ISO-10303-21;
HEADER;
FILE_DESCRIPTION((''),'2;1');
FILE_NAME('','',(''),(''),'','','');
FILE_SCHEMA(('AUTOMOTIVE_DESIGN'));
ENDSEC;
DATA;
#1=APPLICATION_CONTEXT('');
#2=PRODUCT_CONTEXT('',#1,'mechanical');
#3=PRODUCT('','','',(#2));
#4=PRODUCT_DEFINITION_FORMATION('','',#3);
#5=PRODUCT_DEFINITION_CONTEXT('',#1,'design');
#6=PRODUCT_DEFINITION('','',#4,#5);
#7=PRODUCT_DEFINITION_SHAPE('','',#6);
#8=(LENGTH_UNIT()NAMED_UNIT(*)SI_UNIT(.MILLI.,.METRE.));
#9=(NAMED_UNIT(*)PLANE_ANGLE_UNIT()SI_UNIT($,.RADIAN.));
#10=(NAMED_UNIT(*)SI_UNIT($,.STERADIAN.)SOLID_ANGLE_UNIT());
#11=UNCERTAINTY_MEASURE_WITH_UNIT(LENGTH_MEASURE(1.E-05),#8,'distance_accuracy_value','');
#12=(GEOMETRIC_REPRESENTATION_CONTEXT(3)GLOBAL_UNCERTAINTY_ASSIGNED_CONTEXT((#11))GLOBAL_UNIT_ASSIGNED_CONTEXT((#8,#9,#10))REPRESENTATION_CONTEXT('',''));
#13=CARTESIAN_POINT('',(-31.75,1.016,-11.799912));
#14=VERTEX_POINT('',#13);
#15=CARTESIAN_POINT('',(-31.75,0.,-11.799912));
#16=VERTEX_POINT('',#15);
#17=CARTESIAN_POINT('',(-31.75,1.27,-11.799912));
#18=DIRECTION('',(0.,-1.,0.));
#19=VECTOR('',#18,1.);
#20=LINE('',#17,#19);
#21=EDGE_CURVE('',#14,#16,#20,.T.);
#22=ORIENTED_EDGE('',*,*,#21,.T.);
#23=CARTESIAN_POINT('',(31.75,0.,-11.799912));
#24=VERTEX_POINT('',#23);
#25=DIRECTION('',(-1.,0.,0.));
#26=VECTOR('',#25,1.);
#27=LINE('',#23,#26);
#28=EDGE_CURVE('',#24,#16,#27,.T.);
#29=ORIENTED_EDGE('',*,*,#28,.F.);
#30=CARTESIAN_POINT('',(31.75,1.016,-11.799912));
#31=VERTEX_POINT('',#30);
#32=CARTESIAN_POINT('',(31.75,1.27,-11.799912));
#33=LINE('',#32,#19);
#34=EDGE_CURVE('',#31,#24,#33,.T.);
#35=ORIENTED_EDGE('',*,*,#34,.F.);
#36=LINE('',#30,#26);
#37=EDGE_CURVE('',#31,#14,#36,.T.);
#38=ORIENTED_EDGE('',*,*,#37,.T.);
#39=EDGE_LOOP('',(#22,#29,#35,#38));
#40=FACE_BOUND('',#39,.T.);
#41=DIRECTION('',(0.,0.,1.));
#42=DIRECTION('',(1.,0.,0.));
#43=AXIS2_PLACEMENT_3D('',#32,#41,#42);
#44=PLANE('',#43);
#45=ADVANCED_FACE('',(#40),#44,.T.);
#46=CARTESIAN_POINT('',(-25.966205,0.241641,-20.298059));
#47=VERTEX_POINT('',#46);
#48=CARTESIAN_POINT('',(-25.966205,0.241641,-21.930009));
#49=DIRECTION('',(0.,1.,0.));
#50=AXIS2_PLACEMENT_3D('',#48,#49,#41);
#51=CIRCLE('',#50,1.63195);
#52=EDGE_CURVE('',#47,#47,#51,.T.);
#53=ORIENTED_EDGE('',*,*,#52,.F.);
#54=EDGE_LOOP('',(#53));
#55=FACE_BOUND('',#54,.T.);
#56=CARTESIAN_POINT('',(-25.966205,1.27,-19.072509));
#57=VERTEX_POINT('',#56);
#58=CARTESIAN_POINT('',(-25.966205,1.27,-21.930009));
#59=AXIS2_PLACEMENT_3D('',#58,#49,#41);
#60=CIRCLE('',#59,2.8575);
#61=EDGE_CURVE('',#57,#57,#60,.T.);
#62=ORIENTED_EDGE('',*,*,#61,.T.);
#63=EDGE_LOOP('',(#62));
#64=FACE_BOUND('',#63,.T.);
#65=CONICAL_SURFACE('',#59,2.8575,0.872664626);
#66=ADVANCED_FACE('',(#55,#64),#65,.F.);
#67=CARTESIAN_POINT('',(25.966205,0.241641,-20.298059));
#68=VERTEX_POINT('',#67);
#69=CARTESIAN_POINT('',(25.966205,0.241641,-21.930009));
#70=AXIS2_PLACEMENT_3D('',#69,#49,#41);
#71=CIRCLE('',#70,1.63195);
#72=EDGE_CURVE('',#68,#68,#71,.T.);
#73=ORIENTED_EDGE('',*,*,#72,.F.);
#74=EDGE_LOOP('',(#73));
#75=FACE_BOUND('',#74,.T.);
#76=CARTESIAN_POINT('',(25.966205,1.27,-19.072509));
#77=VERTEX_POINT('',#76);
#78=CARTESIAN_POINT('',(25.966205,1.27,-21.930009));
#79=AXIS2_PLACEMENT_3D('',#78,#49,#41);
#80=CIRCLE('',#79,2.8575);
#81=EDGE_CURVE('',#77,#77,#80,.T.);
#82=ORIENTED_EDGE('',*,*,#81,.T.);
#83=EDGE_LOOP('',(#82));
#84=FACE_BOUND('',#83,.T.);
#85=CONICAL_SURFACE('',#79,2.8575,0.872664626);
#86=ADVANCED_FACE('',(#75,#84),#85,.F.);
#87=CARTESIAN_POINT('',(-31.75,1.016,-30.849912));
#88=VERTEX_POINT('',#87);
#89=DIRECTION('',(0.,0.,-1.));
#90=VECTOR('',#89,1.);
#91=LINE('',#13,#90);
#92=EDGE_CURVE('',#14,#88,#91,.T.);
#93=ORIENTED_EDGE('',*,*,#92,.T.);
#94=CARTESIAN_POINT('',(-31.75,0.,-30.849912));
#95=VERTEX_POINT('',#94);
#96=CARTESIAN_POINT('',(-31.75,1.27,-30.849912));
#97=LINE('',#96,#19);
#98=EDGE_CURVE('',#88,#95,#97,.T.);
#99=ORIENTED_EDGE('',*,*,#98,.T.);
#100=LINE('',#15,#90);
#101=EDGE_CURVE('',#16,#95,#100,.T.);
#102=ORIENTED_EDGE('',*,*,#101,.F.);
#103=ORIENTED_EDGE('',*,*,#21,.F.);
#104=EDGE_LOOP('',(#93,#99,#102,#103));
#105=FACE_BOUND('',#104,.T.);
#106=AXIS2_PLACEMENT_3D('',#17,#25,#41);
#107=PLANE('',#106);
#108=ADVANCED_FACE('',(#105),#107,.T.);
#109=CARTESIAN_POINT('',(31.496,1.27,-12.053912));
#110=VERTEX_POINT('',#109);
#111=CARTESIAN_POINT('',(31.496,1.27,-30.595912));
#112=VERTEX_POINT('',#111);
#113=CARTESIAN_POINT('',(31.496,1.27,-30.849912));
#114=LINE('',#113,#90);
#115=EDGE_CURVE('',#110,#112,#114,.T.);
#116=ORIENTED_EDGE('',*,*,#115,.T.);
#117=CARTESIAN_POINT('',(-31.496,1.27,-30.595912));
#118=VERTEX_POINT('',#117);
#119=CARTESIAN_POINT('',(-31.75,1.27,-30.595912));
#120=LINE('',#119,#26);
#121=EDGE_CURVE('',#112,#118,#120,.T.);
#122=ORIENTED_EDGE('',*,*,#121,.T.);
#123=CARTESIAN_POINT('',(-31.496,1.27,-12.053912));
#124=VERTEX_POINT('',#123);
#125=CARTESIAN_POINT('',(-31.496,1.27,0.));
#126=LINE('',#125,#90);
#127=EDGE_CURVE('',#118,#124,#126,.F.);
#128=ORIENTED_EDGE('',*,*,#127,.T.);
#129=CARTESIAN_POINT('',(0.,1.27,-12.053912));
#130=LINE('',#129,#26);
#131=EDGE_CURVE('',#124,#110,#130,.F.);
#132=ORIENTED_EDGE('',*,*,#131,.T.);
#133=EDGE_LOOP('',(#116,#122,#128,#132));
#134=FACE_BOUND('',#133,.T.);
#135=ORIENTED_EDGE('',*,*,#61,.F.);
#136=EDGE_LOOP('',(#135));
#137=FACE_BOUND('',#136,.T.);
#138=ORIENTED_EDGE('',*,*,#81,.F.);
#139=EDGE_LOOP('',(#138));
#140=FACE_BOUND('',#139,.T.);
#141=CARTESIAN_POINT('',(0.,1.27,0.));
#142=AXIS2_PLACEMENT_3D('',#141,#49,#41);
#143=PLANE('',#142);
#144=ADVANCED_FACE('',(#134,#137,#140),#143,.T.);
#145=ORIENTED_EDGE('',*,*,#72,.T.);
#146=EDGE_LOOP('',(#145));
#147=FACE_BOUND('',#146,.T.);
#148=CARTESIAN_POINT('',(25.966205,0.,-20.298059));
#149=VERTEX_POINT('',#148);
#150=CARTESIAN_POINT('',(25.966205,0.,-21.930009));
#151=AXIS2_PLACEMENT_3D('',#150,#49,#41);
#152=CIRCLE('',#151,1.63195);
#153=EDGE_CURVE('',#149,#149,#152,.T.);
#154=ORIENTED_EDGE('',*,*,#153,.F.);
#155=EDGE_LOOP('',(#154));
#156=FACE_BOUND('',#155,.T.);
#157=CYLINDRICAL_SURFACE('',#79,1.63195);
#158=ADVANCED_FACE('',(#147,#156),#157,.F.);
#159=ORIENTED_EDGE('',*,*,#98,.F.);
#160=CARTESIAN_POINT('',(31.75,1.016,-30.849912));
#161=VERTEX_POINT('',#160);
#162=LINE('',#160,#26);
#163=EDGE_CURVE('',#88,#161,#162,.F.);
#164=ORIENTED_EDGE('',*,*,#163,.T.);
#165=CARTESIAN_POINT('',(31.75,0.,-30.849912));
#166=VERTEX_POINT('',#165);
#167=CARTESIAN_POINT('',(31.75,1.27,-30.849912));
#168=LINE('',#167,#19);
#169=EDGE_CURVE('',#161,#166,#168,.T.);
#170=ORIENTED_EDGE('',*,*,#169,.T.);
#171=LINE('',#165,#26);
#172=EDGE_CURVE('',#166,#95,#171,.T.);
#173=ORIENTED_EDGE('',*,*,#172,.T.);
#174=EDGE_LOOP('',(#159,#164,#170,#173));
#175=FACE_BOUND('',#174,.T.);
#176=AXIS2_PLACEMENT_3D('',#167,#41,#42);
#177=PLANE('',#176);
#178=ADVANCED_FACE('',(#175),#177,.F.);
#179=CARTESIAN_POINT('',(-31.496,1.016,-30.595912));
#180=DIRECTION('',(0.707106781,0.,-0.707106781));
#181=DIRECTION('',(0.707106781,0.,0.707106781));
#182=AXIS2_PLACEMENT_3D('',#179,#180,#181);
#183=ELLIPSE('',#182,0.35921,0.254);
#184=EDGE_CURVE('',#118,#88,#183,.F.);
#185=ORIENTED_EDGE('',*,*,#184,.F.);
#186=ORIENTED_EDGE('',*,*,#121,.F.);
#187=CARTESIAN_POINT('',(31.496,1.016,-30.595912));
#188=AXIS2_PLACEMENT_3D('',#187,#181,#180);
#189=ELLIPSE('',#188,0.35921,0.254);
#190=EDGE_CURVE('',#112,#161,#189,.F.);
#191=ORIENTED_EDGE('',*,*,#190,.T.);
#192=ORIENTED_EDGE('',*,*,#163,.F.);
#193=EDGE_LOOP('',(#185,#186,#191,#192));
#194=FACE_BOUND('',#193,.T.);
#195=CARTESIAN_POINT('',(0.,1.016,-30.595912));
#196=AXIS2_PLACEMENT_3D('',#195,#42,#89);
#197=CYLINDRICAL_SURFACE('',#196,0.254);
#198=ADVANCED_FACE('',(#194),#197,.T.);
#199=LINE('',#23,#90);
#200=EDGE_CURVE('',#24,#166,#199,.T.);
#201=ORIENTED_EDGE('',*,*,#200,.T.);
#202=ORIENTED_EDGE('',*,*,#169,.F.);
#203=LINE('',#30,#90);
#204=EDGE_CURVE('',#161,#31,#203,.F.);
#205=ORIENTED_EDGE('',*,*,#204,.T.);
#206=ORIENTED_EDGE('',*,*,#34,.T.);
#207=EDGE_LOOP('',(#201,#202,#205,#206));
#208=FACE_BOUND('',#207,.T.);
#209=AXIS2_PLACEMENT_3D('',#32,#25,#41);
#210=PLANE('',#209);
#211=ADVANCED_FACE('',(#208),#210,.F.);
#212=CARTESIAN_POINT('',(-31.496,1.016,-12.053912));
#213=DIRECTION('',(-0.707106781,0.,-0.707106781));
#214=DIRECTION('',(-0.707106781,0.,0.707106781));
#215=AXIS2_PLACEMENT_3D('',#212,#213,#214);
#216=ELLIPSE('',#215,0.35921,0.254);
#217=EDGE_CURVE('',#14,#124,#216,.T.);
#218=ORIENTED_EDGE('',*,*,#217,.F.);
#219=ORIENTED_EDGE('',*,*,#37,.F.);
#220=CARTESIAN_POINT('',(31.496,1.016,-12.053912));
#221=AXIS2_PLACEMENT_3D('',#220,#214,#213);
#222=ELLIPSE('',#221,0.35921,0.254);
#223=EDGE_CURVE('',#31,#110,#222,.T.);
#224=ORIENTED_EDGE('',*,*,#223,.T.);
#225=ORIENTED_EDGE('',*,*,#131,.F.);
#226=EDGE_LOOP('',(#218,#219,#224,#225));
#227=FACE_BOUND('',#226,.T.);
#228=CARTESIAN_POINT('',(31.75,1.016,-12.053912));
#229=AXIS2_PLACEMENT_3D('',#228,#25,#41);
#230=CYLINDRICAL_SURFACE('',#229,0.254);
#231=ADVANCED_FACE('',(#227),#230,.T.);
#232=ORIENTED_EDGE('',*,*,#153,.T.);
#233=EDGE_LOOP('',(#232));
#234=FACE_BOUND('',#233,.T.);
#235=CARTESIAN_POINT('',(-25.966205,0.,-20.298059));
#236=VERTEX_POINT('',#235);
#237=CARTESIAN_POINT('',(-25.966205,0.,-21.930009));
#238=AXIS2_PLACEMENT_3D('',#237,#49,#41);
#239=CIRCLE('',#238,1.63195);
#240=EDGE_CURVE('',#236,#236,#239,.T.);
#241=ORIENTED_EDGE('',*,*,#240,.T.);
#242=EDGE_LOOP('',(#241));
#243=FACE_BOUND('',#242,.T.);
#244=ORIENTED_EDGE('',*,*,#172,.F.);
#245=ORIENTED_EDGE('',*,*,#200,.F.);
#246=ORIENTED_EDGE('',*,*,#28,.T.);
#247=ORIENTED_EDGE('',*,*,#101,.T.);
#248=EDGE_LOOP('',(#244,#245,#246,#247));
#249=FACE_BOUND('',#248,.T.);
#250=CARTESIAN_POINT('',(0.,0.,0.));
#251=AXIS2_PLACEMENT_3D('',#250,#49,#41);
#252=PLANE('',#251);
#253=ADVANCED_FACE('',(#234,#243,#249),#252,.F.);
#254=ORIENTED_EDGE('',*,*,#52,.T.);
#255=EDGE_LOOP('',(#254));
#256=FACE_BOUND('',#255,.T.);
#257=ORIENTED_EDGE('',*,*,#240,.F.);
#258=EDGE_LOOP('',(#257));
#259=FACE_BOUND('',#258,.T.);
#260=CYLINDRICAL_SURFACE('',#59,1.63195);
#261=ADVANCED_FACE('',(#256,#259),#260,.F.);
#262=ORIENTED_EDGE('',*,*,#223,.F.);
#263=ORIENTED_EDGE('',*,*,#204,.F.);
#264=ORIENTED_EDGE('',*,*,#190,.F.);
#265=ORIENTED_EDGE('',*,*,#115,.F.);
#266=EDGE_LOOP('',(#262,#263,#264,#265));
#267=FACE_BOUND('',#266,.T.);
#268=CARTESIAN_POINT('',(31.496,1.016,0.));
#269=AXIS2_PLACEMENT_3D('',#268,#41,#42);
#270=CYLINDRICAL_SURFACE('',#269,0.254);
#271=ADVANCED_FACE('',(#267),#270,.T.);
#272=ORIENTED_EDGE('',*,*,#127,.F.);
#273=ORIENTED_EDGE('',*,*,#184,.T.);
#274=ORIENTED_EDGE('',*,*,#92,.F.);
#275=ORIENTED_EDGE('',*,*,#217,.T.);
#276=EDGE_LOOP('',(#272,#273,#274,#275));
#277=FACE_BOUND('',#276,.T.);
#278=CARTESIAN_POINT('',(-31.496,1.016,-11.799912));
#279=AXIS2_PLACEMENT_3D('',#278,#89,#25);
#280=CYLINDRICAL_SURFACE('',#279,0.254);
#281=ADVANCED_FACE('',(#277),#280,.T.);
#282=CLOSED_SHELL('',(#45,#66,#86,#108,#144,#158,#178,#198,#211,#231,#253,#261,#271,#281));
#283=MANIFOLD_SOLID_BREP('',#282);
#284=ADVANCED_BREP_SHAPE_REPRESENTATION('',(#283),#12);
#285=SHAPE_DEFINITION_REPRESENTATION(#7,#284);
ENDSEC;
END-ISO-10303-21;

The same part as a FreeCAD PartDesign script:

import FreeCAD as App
import Part
import Sketcher
from FreeCAD import Vector
Q = App.Units.Quantity


def edges_at(feature, points):
    """Names of the edges that pass closest to the given points."""
    edges = feature.Shape.Edges
    near = lambda p: min(range(len(edges)), key=lambda i: edges[i].distToShape(Part.Vertex(*p))[0])
    return sorted({f"Edge{near(p) + 1}" for p in points})

doc = App.newDocument("Part")
params = doc.addObject("Spreadsheet::Sheet", "Params")
for row, (alias, value) in enumerate([
    ("sketch1_width", "2.5 in"),
    ("sketch1_height", "0.75 in"),
    ("pad1_length", "0.05 in"),
    ("sketch2_width", "0.05 in"),
    ("groove_angle", "360 deg"),
    ("linearpattern_pitch", "51.93241 mm"),
    ("fillet_radius", "0.01 in"),
], start=1):
    params.set(f"A{row}", alias)
    params.set(f"B{row}", "=" + value)
    params.setAlias(f"B{row}", alias)

body = doc.addObject("PartDesign::Body", "Body")

sketch1 = body.newObject("Sketcher::SketchObject", "Sketch")
sketch1.AttachmentSupport = (doc.getObject("XZ_Plane"), [""])
sketch1.MapMode = "FlatFace"
sketch1.addGeometry([
    Part.LineSegment(Vector(-32, -31, 0), Vector(-32, -12, 0)),
    Part.LineSegment(Vector(-32, -12, 0), Vector(32, -12, 0)),
    Part.LineSegment(Vector(32, -12, 0), Vector(32, -31, 0)),
    Part.LineSegment(Vector(32, -31, 0), Vector(-32, -31, 0)),
], False)
sketch1.addConstraint([
    Sketcher.Constraint("Coincident", 0, 2, 1, 1),
    Sketcher.Constraint("Coincident", 1, 2, 2, 1),
    Sketcher.Constraint("Coincident", 2, 2, 3, 1),
    Sketcher.Constraint("Coincident", 3, 2, 0, 1),
    Sketcher.Constraint("Vertical", 0),
    Sketcher.Constraint("Horizontal", 1),
    Sketcher.Constraint("Vertical", 2),
    Sketcher.Constraint("Horizontal", 3),
    Sketcher.Constraint("DistanceX", 1, 1, 1, 2, Q("2.5 in")),
    Sketcher.Constraint("DistanceY", 0, 1, 0, 2, Q("0.75 in")),
    Sketcher.Constraint("DistanceX", 0, 2, -1, 1, Q("1.25 in")),
    Sketcher.Constraint("DistanceY", 0, 2, -1, 1, Q("11.799912 mm")),
])
sketch1.setExpression("Constraints[8]", "Params.sketch1_width")
sketch1.setExpression("Constraints[9]", "Params.sketch1_height")
pad1 = body.newObject("PartDesign::Pad", "Pad")
pad1.Profile = sketch1
pad1.setExpression("Length", "Params.pad1_length")
pad1.Reversed = True

sketch2 = body.newObject("Sketcher::SketchObject", "Sketch001")
sketch2.AttachmentSupport = (doc.getObject("YZ_Plane"), [""])
sketch2.MapMode = "FlatFace"
sketch2.AttachmentOffset = App.Placement(Vector(0, 0, -25.966205), App.Rotation())
sketch2.addGeometry([
    Part.LineSegment(Vector(0, -21.93, 0), Vector(1.27, -21.93, 0)),
    Part.LineSegment(Vector(1.27, -21.93, 0), Vector(1.27, -19.07, 0)),
    Part.LineSegment(Vector(1.27, -19.07, 0), Vector(0.24, -20.3, 0)),
    Part.LineSegment(Vector(0.24, -20.3, 0), Vector(0, -20.3, 0)),
    Part.LineSegment(Vector(0, -20.3, 0), Vector(0, -21.93, 0)),
], False)
sketch2.addGeometry(Part.LineSegment(Vector(1.27, -21.93, 0), Vector(0, -21.93, 0)), True)
sketch2.addConstraint([
    Sketcher.Constraint("Coincident", 0, 2, 1, 1),
    Sketcher.Constraint("Coincident", 1, 2, 2, 1),
    Sketcher.Constraint("Coincident", 2, 2, 3, 1),
    Sketcher.Constraint("Coincident", 3, 2, 4, 1),
    Sketcher.Constraint("Coincident", 4, 2, 0, 1),
    Sketcher.Constraint("Horizontal", 0),
    Sketcher.Constraint("Vertical", 1),
    Sketcher.Constraint("Horizontal", 3),
    Sketcher.Constraint("Vertical", 4),
    Sketcher.Constraint("Horizontal", 5),
    Sketcher.Constraint("Coincident", 5, 1, 0, 2),
    Sketcher.Constraint("PointOnObject", 3, 2, -2),
    Sketcher.Constraint("PointOnObject", 5, 2, -2),
    Sketcher.Constraint("Angle", 2, Q("-130 deg")),
    Sketcher.Constraint("DistanceX", 0, 1, 0, 2, Q("0.05 in")),
    Sketcher.Constraint("DistanceY", 1, 1, 1, 2, Q("0.1125 in")),
    Sketcher.Constraint("DistanceX", 3, 2, 3, 1, Q("0.241641 mm")),
    Sketcher.Constraint("DistanceY", 0, 2, -1, 1, Q("21.930009 mm")),
])
sketch2.setExpression("Constraints[14]", "Params.sketch2_width")
groove = body.newObject("PartDesign::Groove", "Groove")
groove.Profile = sketch2
groove.ReferenceAxis = (sketch2, ["Axis0"])
groove.setExpression("Angle", "Params.groove_angle")
doc.recompute()

linearpattern = body.newObject("PartDesign::LinearPattern", "LinearPattern")
linearpattern.Originals = [groove]
linearpattern.Direction = (doc.getObject("X_Axis"), [""])
linearpattern.Mode = "offset"
linearpattern.setExpression("Offset", "Params.linearpattern_pitch")
linearpattern.Occurrences = 2
body.Tip = linearpattern
doc.recompute()

fillet = body.newObject("PartDesign::Fillet", "Fillet")
fillet.Base = (linearpattern, edges_at(linearpattern, [
    (-31.75, 1.27, -21.325),
    (0, 1.27, -11.8),
    (31.75, 1.27, -21.325),
    (0, 1.27, -30.85),
]))
fillet.setExpression("Radius", "Params.fillet_radius")

doc.recompute()
